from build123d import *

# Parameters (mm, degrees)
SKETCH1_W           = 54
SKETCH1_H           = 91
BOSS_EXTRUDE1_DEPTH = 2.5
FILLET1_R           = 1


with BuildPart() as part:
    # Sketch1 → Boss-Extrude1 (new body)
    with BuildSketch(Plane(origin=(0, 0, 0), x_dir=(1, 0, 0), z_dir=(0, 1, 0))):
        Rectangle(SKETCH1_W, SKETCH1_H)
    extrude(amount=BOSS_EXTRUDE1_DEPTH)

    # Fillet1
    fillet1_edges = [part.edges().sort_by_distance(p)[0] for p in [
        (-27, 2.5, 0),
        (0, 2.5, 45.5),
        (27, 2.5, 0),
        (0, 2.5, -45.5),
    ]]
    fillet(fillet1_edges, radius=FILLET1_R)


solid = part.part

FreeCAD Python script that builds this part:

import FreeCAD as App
import Part
import Sketcher

V = App.Vector


def edges_at(feature, points):
    """Names of the edges that pass closest to the given points."""
    edges = feature.Shape.Edges
    near = lambda p: min(range(len(edges)), key=lambda i: edges[i].distToShape(Part.Vertex(*p))[0])
    return sorted({f"Edge{near(p) + 1}" for p in points})


def add_polygon(sketch, points):
    """Adds a closed chain of lines whose ends are joined by coincident constraints."""
    first, n = sketch.GeometryCount, len(points)
    for a, b in zip(points, points[1:] + points[:1]):
        sketch.addGeometry(Part.LineSegment(App.Vector(*a, 0), App.Vector(*b, 0)), False)
    for i in range(n):
        sketch.addConstraint(Sketcher.Constraint("Coincident", first + i, 2, first + (i + 1) % n, 1))

doc = App.newDocument("Part")
params = doc.addObject("Spreadsheet::Sheet", "Params")
for row, (alias, value) in enumerate([
    ("sketch1_width", "54 mm"),
    ("sketch1_height", "91 mm"),
    ("pad1_length", "2.5 mm"),
    ("fillet_radius", "1 mm"),
], start=1):
    params.set(f"A{row}", alias)
    params.set(f"B{row}", "=" + value)
    params.setAlias(f"B{row}", alias)

body = doc.addObject("PartDesign::Body", "Body")

sketch1 = body.newObject("Sketcher::SketchObject", "Sketch")
sketch1.AttachmentSupport = (doc.getObject("XZ_Plane"), [""])
sketch1.MapMode = "FlatFace"
add_polygon(sketch1, [(-27, -46), (-27, 46), (27, 46), (27, -46)])
sketch1.addConstraint([
    Sketcher.Constraint("Vertical", 0),
    Sketcher.Constraint("Horizontal", 1),
    Sketcher.Constraint("Vertical", 2),
    Sketcher.Constraint("Horizontal", 3),
    Sketcher.Constraint("Symmetric", 0, 2, 2, 2, -1, 1),
    Sketcher.Constraint("DistanceX", 1, 1, 1, 2, 54.0),
    Sketcher.Constraint("DistanceY", 0, 1, 0, 2, 91.0),
])
sketch1.setExpression("Constraints[9]", "Params.sketch1_width")
sketch1.setExpression("Constraints[10]", "Params.sketch1_height")
pad1 = body.newObject("PartDesign::Pad", "Pad")
pad1.Profile = sketch1
pad1.setExpression("Length", "Params.pad1_length")
pad1.Reversed = True
doc.recompute()

fillet = body.newObject("PartDesign::Fillet", "Fillet")
fillet.Base = (pad1, edges_at(pad1, [
    (-27, 2.5, 0),
    (0, 2.5, 45.5),
    (27, 2.5, 0),
    (0, 2.5, -45.5),
]))
fillet.setExpression("Radius", "Params.fillet_radius")

doc.recompute()
